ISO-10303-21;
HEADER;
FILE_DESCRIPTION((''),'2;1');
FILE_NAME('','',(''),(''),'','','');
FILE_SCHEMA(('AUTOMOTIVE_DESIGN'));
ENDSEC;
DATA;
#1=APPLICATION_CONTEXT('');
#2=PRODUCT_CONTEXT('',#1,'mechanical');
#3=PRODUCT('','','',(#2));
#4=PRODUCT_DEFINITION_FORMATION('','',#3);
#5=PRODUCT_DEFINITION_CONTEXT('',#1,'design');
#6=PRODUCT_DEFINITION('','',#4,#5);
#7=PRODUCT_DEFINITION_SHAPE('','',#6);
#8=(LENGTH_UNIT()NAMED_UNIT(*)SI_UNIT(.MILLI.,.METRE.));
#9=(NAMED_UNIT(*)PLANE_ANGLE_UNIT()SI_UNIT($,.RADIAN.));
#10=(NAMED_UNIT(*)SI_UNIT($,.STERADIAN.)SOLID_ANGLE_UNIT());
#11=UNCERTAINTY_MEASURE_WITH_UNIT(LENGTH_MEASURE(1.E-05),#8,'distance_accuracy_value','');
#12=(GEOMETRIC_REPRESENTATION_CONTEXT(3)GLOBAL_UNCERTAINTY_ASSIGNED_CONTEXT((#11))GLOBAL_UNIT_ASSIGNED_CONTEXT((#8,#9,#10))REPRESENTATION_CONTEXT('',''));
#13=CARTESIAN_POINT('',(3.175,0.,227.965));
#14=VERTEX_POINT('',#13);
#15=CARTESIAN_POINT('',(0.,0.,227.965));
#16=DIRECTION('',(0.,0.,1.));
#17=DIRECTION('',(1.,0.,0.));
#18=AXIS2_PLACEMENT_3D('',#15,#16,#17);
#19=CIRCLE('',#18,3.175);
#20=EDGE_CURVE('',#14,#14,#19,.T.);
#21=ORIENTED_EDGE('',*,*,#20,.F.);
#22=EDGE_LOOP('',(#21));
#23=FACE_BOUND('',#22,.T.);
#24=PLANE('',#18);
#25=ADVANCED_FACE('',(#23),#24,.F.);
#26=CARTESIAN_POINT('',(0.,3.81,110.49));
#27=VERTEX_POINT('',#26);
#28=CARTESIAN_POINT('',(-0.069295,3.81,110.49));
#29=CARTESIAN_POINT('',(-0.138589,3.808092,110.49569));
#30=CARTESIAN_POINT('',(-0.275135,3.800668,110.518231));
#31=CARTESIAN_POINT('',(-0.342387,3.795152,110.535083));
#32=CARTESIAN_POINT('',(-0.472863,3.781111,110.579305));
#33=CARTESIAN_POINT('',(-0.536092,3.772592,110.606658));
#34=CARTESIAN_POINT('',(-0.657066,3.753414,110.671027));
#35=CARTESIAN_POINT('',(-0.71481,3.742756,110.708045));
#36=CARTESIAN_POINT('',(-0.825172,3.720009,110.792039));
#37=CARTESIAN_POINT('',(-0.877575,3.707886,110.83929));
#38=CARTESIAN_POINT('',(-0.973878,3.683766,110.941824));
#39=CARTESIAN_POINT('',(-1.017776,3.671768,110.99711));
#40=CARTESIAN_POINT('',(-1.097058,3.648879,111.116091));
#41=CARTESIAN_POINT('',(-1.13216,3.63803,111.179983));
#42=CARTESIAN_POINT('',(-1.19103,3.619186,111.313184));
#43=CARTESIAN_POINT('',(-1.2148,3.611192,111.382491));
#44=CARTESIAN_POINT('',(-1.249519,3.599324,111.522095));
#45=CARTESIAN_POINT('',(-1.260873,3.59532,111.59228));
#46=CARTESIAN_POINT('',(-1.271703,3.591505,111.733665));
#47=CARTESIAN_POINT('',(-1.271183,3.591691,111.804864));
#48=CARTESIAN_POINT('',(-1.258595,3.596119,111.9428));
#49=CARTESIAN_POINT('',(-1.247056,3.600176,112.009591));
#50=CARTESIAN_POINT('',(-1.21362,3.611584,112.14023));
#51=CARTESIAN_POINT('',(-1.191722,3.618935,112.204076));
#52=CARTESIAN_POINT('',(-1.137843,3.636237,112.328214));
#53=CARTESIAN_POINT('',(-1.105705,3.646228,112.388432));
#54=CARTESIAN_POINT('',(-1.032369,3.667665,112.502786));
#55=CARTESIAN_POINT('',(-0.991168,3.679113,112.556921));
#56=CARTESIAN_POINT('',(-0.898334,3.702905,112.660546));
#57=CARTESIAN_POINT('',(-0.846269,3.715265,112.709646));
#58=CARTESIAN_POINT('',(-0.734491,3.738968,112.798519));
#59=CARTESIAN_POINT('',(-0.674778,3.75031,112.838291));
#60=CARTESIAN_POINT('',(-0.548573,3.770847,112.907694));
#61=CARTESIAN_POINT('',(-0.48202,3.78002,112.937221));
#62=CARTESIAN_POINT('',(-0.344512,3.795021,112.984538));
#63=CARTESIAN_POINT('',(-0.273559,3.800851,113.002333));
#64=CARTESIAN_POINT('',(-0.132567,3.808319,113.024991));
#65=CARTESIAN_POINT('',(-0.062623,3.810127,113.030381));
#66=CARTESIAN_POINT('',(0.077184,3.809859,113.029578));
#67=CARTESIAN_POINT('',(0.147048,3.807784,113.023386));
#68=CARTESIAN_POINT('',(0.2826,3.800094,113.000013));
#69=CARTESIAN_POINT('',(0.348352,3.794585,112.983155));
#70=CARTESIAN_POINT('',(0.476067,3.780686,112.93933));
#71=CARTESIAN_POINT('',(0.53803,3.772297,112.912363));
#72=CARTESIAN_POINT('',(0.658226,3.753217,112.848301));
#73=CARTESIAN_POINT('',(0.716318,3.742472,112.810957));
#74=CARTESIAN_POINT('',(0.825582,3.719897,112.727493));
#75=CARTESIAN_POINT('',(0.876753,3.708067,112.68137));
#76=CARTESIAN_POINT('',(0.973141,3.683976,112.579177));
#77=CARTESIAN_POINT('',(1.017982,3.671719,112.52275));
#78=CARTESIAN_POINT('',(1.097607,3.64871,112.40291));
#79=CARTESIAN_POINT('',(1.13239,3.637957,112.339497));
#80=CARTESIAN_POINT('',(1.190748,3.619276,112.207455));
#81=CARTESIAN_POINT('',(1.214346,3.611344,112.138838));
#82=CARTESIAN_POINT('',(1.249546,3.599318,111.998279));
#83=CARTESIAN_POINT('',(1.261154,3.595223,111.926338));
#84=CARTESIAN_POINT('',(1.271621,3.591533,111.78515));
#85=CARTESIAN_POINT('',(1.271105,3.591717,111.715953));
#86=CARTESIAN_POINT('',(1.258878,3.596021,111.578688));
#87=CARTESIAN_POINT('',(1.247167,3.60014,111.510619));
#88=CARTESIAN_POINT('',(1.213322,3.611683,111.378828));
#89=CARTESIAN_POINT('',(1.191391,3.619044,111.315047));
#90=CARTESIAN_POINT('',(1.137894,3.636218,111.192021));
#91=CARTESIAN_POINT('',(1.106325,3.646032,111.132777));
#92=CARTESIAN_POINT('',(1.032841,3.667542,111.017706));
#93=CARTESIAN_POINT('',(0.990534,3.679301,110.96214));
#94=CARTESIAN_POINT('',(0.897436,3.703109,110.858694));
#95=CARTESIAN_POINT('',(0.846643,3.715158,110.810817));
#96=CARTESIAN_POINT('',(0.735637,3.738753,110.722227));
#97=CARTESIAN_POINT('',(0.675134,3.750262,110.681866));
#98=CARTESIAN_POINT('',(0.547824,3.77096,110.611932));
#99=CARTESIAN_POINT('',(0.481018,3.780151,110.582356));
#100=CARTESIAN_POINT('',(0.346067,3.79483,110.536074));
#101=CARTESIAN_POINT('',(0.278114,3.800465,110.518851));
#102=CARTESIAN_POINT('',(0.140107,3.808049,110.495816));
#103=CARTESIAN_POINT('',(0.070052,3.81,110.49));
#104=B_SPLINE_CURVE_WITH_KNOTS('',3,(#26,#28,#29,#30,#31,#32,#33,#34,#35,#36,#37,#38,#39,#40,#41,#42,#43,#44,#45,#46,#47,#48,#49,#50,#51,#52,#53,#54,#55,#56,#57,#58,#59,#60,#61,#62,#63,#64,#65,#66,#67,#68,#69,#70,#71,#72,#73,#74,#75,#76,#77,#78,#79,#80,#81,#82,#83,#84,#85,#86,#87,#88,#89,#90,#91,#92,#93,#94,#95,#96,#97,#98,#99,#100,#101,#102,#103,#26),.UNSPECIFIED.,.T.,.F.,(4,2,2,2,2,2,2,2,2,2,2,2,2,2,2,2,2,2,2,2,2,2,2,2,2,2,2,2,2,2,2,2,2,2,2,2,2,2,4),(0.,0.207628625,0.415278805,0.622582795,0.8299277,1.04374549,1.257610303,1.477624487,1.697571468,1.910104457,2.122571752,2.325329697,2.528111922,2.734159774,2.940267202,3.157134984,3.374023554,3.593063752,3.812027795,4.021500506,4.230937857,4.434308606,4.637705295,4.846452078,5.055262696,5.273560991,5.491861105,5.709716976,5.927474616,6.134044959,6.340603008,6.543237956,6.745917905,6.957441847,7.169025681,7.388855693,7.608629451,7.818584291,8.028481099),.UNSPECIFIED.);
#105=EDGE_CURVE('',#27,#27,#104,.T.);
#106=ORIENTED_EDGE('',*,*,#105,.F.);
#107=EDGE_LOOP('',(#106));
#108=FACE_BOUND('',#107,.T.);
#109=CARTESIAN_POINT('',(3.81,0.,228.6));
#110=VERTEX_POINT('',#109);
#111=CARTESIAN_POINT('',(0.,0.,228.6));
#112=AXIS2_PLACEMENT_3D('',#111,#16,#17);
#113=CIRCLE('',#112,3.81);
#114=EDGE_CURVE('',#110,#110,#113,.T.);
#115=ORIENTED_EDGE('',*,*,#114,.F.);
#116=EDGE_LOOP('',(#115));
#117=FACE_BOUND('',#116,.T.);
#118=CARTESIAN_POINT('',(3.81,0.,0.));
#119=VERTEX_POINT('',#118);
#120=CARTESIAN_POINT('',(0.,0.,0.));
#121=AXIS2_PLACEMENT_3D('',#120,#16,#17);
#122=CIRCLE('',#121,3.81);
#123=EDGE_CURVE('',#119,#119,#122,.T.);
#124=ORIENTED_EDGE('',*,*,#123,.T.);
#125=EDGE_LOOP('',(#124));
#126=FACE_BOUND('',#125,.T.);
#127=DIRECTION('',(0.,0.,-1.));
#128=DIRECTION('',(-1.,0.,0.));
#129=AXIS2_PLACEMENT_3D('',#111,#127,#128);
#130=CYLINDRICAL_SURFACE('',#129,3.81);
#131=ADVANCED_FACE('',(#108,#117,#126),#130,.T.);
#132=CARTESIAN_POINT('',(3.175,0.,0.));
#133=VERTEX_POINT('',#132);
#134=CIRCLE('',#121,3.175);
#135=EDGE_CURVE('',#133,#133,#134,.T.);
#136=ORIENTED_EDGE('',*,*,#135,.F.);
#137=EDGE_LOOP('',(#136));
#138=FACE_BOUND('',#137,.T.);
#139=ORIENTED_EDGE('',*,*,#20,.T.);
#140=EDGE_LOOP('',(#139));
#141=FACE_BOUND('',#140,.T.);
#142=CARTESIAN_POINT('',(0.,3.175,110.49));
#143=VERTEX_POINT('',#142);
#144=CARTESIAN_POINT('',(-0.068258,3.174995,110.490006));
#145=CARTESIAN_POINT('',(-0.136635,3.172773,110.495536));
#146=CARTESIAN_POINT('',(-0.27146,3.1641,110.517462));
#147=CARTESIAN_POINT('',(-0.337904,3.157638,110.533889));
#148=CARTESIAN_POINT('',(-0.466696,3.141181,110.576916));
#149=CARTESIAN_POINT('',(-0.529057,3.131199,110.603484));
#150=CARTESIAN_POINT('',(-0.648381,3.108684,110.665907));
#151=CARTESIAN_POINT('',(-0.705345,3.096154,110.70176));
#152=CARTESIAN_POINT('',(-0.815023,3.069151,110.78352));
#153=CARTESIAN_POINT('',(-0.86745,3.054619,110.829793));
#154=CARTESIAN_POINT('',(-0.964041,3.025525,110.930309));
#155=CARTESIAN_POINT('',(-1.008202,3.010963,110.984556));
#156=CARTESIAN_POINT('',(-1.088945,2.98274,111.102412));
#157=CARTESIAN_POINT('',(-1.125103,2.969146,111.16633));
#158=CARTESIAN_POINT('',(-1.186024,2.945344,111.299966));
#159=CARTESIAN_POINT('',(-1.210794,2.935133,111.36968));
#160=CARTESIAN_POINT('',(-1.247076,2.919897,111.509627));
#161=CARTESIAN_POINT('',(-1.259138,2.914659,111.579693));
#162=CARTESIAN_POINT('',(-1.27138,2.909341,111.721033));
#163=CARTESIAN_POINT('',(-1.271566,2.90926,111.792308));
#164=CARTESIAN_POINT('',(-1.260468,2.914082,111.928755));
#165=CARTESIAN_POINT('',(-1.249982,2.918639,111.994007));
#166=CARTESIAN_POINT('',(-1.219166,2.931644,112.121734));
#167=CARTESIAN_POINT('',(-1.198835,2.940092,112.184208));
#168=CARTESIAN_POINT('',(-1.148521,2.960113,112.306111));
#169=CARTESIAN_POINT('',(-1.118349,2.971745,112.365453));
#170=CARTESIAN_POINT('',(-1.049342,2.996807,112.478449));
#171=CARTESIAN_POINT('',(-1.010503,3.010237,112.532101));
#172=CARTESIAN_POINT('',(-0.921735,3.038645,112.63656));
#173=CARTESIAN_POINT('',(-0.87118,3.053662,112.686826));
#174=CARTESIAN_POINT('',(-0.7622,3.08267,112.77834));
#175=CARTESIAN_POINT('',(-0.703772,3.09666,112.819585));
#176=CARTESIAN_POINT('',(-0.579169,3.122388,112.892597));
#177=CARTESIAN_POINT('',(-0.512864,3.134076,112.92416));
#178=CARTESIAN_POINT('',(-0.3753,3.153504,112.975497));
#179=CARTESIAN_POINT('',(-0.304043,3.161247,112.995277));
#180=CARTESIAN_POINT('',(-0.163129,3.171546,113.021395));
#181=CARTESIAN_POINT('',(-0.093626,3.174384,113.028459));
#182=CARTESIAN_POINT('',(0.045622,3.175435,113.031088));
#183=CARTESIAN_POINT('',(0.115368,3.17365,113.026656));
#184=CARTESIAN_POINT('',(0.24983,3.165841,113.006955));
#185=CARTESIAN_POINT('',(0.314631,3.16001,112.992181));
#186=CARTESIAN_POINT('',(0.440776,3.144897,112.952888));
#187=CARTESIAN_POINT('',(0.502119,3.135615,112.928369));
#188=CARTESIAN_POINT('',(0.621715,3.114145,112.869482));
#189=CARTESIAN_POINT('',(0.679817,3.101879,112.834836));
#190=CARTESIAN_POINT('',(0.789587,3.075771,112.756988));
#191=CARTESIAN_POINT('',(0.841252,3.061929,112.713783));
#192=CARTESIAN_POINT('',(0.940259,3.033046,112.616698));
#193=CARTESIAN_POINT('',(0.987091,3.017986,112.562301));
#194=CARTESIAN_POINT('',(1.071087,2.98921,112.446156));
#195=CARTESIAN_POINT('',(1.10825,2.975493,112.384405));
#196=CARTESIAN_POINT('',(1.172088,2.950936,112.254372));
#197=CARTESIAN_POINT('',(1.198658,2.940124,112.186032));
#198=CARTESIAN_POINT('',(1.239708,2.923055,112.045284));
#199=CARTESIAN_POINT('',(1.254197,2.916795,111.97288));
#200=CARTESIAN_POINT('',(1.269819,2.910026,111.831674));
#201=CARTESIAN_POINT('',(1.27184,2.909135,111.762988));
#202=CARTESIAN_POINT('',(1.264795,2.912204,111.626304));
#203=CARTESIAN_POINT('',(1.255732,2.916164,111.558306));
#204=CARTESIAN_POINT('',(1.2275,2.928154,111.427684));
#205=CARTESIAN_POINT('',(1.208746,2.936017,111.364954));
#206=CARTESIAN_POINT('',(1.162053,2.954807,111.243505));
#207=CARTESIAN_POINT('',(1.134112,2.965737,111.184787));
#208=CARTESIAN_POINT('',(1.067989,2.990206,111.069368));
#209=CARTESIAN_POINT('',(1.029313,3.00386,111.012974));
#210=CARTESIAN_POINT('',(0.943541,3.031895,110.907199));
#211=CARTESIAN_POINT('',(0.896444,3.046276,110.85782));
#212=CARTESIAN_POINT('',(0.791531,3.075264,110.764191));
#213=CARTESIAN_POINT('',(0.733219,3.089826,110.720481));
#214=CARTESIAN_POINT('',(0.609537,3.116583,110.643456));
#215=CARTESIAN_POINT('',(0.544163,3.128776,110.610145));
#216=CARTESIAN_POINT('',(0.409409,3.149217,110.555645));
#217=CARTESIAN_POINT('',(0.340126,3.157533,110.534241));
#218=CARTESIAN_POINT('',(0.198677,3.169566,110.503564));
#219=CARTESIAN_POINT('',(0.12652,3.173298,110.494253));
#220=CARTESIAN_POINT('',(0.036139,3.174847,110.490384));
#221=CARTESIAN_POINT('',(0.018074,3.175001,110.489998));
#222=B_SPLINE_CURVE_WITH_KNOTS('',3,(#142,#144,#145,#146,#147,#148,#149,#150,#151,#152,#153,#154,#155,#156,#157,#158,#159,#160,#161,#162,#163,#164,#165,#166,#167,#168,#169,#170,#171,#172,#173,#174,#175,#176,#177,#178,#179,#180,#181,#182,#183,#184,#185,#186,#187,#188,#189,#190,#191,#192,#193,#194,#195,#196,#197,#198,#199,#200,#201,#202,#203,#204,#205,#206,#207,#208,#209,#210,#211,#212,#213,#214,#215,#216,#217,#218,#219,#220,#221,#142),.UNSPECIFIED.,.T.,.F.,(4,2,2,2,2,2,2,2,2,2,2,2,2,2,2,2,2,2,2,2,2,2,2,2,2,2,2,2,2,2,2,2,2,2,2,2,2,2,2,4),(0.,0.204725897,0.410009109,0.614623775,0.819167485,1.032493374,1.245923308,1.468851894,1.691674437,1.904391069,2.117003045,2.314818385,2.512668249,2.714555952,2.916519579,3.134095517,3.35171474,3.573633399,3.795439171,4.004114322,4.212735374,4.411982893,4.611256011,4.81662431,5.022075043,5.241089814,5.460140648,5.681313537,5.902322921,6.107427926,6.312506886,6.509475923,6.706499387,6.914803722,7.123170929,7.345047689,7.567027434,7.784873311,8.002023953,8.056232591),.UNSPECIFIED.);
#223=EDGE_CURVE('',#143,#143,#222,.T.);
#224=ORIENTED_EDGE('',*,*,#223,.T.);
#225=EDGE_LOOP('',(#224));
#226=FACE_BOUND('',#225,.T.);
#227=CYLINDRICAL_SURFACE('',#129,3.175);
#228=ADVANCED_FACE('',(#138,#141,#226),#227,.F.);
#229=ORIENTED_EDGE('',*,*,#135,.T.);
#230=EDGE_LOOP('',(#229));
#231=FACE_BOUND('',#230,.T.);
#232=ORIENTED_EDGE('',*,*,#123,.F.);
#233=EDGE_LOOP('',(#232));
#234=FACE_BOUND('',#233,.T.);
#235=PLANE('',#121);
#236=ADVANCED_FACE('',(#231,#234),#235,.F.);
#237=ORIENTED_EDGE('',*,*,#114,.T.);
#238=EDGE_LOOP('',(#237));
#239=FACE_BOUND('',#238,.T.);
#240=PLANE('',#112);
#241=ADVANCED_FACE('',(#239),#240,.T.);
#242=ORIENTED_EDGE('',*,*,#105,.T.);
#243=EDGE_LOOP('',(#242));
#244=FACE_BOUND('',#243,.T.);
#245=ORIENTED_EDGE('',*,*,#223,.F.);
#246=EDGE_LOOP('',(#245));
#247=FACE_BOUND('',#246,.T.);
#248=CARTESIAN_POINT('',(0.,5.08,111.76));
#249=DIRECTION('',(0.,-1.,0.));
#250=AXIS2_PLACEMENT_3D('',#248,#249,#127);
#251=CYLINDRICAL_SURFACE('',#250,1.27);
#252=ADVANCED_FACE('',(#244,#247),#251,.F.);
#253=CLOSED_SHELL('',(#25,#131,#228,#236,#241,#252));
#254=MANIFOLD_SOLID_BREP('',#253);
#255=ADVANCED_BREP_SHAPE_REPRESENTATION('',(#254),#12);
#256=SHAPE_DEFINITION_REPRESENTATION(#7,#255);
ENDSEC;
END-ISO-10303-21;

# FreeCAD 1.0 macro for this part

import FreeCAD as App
import Part
import Sketcher
Q = App.Units.Quantity


def faces_at(feature, points):
    """Names of the faces that lie closest to the given points."""
    faces = feature.Shape.Faces
    near = lambda p: min(range(len(faces)), key=lambda i: faces[i].distToShape(Part.Vertex(*p))[0])
    return sorted({f"Face{near(p) + 1}" for p in points})

doc = App.newDocument("Part")
body = doc.addObject("PartDesign::Body", "Body")

# Sketch on XY plane
sketch1 = body.newObject("Sketcher::SketchObject", "Sketch")
sketch1.AttachmentSupport = (doc.getObject("XY_Plane"), [""])
sketch1.MapMode = "FlatFace"
sketch1.addGeometry(Part.Circle(App.Vector(0, 0, 0), App.Vector(0, 0, 1), 3.8), False)
sketch1.addConstraint(Sketcher.Constraint("Coincident", 0, 3, -1, 1))
sketch1.addConstraint(Sketcher.Constraint("Diameter", 0, Q("0.3 in")))
pad1 = body.newObject("PartDesign::Pad", "Pad")
pad1.Profile = sketch1
pad1.Length = Q("9 in")
doc.recompute()

thickness = body.newObject("PartDesign::Thickness", "Thickness")
thickness.Base = (pad1, faces_at(pad1, [(0, 0, 0)]))
thickness.Value = Q("0.025 in")
thickness.Reversed = True
thickness.Join = "Intersection"

# Sketch on XZ plane
sketch2 = body.newObject("Sketcher::SketchObject", "Sketch001")
sketch2.AttachmentSupport = (doc.getObject("XZ_Plane"), [""])
sketch2.MapMode = "FlatFace"
sketch2.addGeometry(Part.Circle(App.Vector(0, 111.8, 0), App.Vector(0, 0, 1), 1.3), False)
sketch2.addConstraint(Sketcher.Constraint("PointOnObject", 0, 3, -2))
sketch2.addConstraint(Sketcher.Constraint("Diameter", 0, Q("0.1 in")))
sketch2.addConstraint(Sketcher.Constraint("DistanceY", -1, 1, 0, 3, Q("4.4 in")))
pocket1 = body.newObject("PartDesign::Pocket", "Pocket")
pocket1.Profile = sketch2
pocket1.Length = Q("0.2 in")

doc.recompute()
